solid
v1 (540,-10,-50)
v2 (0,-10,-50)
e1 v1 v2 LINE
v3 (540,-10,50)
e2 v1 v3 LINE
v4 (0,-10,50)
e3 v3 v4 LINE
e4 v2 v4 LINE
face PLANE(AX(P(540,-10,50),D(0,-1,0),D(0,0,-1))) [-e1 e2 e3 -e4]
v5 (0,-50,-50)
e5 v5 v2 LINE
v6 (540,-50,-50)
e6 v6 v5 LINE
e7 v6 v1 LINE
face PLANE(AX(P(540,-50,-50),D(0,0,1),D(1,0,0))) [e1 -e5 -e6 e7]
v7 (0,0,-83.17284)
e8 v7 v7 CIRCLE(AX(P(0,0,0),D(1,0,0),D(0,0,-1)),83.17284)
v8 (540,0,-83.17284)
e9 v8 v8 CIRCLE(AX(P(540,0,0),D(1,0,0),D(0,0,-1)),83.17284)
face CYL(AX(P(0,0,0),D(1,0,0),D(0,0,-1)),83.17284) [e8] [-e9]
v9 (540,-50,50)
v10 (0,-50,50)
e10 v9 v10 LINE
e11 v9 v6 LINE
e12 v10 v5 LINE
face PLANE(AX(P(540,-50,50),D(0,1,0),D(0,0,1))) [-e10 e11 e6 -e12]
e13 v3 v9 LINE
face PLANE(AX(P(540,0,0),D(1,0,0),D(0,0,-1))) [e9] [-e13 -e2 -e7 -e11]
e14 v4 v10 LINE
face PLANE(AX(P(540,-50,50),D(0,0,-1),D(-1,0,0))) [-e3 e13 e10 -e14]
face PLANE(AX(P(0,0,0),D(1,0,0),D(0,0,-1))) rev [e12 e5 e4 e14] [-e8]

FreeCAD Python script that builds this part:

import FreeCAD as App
import Part
import Sketcher

V = App.Vector
Q = App.Units.Quantity

doc = App.newDocument("Part")
body = doc.addObject("PartDesign::Body", "Body")

# Sketch on YZ plane
sketch1 = body.newObject("Sketcher::SketchObject", "Sketch")
sketch1.AttachmentSupport = (doc.getObject("YZ_Plane"), [""])
sketch1.MapMode = "FlatFace"
sketch1.addGeometry([
    Part.Circle(V(0, 0, 0), V(0, 0, 1), 93),  # 0
    Part.LineSegment(V(-50, -50, 0), V(-50, 50, 0)),  # 1
    Part.LineSegment(V(-50, 50, 0), V(-10, 50, 0)),  # 2
    Part.LineSegment(V(-10, 50, 0), V(-10, -50, 0)),  # 3
    Part.LineSegment(V(-10, -50, 0), V(-50, -50, 0)),  # 4
], False)
sketch1.addConstraint([
    Sketcher.Constraint("Coincident", 1, 2, 2, 1),
    Sketcher.Constraint("Coincident", 2, 2, 3, 1),
    Sketcher.Constraint("Coincident", 3, 2, 4, 1),
    Sketcher.Constraint("Coincident", 4, 2, 1, 1),
    Sketcher.Constraint("Vertical", 1),
    Sketcher.Constraint("Horizontal", 2),
    Sketcher.Constraint("Vertical", 3),
    Sketcher.Constraint("Horizontal", 4),
    Sketcher.Constraint("Coincident", 0, 3, -1, 1),
    Sketcher.Constraint("DistanceX", 2, 1, 2, 2, Q("40 mm")),
    Sketcher.Constraint("DistanceY", 1, 1, 1, 2, Q("100 mm")),
    Sketcher.Constraint("DistanceX", 1, 2, -1, 1, Q("50 mm")),
    Sketcher.Constraint("DistanceY", -1, 1, 1, 2, Q("50 mm")),
    Sketcher.Constraint("Diameter", 0, Q("186.34568 mm")),
])
pad1 = body.newObject("PartDesign::Pad", "Pad")
pad1.Profile = sketch1
pad1.Length = 540

# Sketch on YZ plane
sketch2 = body.newObject("Sketcher::SketchObject", "Sketch001")
sketch2.AttachmentSupport = (doc.getObject("YZ_Plane"), [""])
sketch2.MapMode = "FlatFace"
sketch2.AttachmentOffset = App.Placement(V(0, 0, 540), App.Rotation())
sketch2.addGeometry([
    Part.LineSegment(V(154, 154, 0), V(-154, 154, 0)),  # 0
    Part.LineSegment(V(-154, 154, 0), V(-154, -154, 0)),  # 1
    Part.LineSegment(V(-154, -154, 0), V(154, -154, 0)),  # 2
    Part.LineSegment(V(154, -154, 0), V(154, 154, 0)),  # 3
    Part.Circle(V(0, 0, 0), V(0, 0, 1), 83),  # 4
], False)
sketch2.addConstraint([
    Sketcher.Constraint("Coincident", 0, 2, 1, 1),
    Sketcher.Constraint("Coincident", 1, 2, 2, 1),
    Sketcher.Constraint("Coincident", 2, 2, 3, 1),
    Sketcher.Constraint("Coincident", 3, 2, 0, 1),
    Sketcher.Constraint("Horizontal", 0),
    Sketcher.Constraint("Vertical", 1),
    Sketcher.Constraint("Horizontal", 2),
    Sketcher.Constraint("Vertical", 3),
    Sketcher.Constraint("Coincident", 4, 3, -1, 1),
    Sketcher.Constraint("Symmetric", 0, 2, 2, 2, -1, 1),
    Sketcher.Constraint("Equal", 2, 1),
    Sketcher.Constraint("DistanceX", 0, 2, 0, 1, Q("308.52 mm")),
    Sketcher.Constraint("Diameter", 4, Q("166.34568 mm")),
])
pocket1 = body.newObject("PartDesign::Pocket", "Pocket")
pocket1.Profile = sketch2
pocket1.Type = "ThroughAll"

doc.recompute()
